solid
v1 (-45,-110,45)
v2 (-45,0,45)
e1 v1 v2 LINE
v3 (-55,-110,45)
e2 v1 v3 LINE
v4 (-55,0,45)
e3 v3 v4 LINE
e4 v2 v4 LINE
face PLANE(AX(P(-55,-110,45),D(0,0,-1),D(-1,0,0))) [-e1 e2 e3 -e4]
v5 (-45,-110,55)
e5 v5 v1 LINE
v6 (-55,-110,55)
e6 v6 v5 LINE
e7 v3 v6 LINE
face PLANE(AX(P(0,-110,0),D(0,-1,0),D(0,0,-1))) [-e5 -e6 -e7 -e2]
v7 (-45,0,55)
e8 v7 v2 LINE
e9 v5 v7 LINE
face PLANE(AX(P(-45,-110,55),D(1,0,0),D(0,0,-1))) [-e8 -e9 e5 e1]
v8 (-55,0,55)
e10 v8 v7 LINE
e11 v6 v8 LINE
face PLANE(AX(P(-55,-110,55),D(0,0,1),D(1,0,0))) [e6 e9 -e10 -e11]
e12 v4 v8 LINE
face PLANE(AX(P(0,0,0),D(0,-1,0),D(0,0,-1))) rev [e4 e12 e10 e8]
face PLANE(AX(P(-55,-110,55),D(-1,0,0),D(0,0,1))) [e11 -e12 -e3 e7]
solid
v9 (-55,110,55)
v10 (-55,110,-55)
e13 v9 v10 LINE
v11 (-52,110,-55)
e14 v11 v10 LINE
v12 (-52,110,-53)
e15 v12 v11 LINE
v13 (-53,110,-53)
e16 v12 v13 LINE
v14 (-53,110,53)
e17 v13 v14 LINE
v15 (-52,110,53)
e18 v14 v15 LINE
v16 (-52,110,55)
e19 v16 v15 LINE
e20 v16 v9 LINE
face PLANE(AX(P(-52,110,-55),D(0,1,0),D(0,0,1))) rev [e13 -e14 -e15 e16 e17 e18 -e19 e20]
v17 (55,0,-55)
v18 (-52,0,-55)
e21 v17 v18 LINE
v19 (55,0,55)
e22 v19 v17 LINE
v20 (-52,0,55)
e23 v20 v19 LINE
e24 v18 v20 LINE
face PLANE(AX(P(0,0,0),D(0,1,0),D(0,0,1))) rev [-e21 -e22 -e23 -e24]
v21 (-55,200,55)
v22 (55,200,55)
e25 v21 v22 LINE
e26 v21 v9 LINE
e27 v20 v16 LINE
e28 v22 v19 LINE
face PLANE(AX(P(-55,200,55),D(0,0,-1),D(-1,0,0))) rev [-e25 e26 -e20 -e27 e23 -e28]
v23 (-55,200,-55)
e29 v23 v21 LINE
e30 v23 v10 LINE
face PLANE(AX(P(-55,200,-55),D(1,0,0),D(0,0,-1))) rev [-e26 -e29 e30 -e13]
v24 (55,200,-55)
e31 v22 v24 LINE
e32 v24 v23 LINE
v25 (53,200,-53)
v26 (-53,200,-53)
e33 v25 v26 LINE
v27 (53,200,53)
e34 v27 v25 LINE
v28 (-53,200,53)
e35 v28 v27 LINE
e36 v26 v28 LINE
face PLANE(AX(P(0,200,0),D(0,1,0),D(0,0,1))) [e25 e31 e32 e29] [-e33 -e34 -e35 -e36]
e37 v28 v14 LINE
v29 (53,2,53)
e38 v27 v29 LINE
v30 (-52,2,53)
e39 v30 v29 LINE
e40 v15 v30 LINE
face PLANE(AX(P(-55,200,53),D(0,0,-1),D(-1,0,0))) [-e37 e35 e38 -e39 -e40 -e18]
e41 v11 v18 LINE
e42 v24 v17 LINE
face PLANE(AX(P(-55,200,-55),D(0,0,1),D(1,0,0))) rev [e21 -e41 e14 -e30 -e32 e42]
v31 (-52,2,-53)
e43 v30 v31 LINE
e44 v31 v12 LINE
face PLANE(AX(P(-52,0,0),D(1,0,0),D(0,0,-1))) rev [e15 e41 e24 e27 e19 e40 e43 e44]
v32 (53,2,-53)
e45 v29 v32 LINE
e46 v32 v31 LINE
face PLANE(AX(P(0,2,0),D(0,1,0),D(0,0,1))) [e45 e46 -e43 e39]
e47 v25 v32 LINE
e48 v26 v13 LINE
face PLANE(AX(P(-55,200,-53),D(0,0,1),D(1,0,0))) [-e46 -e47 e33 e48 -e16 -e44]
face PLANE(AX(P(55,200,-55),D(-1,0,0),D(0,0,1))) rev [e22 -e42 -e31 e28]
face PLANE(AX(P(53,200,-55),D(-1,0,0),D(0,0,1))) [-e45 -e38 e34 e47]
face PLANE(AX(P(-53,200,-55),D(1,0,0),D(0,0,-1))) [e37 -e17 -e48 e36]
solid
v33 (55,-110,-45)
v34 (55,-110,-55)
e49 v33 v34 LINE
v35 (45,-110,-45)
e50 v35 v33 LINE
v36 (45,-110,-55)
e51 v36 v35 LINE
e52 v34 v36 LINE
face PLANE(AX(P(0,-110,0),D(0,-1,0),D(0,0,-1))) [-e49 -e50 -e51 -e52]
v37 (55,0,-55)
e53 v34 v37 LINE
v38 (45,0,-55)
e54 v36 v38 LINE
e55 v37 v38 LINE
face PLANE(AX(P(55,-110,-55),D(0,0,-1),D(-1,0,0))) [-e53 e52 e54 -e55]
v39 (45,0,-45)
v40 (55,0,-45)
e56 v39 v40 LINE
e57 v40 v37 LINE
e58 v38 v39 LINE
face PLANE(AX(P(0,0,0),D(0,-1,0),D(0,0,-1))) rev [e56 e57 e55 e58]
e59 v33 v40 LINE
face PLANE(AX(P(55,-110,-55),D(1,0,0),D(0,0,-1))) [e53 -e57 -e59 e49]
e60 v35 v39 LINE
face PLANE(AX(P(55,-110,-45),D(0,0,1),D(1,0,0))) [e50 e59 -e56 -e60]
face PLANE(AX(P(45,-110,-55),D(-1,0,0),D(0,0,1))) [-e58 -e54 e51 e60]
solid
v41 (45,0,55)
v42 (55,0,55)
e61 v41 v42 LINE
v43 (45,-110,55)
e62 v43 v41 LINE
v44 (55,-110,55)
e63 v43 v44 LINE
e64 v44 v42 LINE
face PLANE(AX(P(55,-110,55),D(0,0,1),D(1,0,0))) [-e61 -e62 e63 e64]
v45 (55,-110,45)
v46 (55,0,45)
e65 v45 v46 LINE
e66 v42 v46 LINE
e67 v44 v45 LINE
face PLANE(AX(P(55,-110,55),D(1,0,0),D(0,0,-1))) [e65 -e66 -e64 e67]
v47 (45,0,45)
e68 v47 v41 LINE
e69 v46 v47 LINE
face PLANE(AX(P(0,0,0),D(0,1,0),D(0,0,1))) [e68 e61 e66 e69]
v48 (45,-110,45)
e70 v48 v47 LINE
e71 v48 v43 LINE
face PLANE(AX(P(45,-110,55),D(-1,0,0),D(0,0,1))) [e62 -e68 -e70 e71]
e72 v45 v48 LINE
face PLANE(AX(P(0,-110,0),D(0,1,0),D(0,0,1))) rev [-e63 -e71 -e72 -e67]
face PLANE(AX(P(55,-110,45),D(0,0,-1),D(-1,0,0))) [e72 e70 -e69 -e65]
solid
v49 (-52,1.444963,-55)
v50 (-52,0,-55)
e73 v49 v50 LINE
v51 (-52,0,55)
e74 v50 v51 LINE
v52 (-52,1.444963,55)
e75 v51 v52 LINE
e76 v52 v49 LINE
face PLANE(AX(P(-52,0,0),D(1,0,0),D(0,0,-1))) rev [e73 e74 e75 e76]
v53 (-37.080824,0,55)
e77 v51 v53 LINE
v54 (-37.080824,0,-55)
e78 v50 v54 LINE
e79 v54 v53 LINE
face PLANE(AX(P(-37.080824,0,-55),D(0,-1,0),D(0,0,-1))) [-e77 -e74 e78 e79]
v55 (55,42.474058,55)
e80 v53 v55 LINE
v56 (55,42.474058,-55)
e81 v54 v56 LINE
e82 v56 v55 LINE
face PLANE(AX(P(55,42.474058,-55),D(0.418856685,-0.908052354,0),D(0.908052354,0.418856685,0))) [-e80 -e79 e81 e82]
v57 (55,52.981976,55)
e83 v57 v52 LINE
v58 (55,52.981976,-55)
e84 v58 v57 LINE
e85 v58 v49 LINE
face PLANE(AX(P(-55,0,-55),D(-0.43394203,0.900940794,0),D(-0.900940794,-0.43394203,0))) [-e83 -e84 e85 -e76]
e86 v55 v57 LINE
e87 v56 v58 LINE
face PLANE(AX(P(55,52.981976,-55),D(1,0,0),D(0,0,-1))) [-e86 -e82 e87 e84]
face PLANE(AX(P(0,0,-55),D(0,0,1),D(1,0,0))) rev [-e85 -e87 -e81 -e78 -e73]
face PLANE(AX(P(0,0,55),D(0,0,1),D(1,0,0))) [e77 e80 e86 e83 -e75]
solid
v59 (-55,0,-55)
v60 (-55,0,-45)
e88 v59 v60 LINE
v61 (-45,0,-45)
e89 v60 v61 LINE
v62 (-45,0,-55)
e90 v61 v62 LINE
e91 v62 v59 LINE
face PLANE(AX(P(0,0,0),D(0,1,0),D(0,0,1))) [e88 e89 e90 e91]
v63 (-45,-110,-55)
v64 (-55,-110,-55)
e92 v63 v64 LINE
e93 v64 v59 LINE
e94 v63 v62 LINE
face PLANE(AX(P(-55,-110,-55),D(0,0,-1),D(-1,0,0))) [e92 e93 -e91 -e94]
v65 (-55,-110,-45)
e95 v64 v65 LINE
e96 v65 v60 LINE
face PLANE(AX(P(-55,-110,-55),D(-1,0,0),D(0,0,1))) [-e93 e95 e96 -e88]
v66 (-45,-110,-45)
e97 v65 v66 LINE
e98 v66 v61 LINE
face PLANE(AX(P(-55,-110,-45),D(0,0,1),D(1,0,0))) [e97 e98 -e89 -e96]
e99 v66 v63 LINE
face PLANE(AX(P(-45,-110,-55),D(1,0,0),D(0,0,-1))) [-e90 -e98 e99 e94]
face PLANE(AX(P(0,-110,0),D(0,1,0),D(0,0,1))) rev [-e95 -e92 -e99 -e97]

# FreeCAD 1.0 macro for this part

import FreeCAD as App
import Part
import Sketcher
Q = App.Units.Quantity


def faces_at(feature, points):
    """Names of the faces that lie closest to the given points."""
    faces = feature.Shape.Faces
    near = lambda p: min(range(len(faces)), key=lambda i: faces[i].distToShape(Part.Vertex(*p))[0])
    return sorted({f"Face{near(p) + 1}" for p in points})


def add_polygon(sketch, points):
    """Adds a closed chain of lines whose ends are joined by coincident constraints."""
    first, n = sketch.GeometryCount, len(points)
    for a, b in zip(points, points[1:] + points[:1]):
        sketch.addGeometry(Part.LineSegment(App.Vector(*a, 0), App.Vector(*b, 0)), False)
    for i in range(n):
        sketch.addConstraint(Sketcher.Constraint("Coincident", first + i, 2, first + (i + 1) % n, 1))

doc = App.newDocument("Part")
body = doc.addObject("PartDesign::Body", "Body")

sketch1 = doc.addObject("Sketcher::SketchObject", "Sketch")
body.addObject(sketch1)
sketch1.AttachmentSupport = (doc.XZ_Plane, [""])
sketch1.MapMode = "FlatFace"
add_polygon(sketch1, [(-55, -55), (-55, 55), (55, 55), (55, -55)])
sketch1.addConstraint(Sketcher.Constraint("Vertical", 0))
sketch1.addConstraint(Sketcher.Constraint("Horizontal", 1))
sketch1.addConstraint(Sketcher.Constraint("Vertical", 2))
sketch1.addConstraint(Sketcher.Constraint("Horizontal", 3))
sketch1.addConstraint(Sketcher.Constraint("Symmetric", 0, 2, 2, 2, -1, 1))
sketch1.addConstraint(Sketcher.Constraint("Equal", 3, 0))
sketch1.addConstraint(Sketcher.Constraint("DistanceX", 1, 1, 1, 2, Q("110 mm")))
pad1 = doc.addObject("PartDesign::Pad", "Pad")
body.addObject(pad1)
pad1.Profile = sketch1
pad1.Length = 200
pad1.Reversed = True
doc.recompute()

thickness = doc.addObject("PartDesign::Thickness", "Thickness")
body.addObject(thickness)
thickness.Base = (pad1, faces_at(pad1, [(0, 200, 0)]))
thickness.Value = 2
thickness.Reversed = True
thickness.Join = "Intersection"
body2 = doc.addObject("PartDesign::Body", "Body001")

sketch2 = doc.addObject("Sketcher::SketchObject", "Sketch001")
body2.addObject(sketch2)
sketch2.AttachmentSupport = (doc.getObject("XZ_Plane001"), [""])
sketch2.MapMode = "FlatFace"
add_polygon(sketch2, [(45, 45), (45, 55), (55, 55), (55, 45)])
sketch2.addConstraint(Sketcher.Constraint("Vertical", 0))
sketch2.addConstraint(Sketcher.Constraint("Horizontal", 1))
sketch2.addConstraint(Sketcher.Constraint("Vertical", 2))
sketch2.addConstraint(Sketcher.Constraint("Horizontal", 3))
sketch2.addConstraint(Sketcher.Constraint("Equal", 3, 0))
sketch2.addConstraint(Sketcher.Constraint("DistanceX", 1, 1, 1, 2, Q("10 mm")))
sketch2.addConstraint(Sketcher.Constraint("DistanceX", -1, 1, 0, 2, Q("45 mm")))
sketch2.addConstraint(Sketcher.Constraint("DistanceY", -1, 1, 0, 2, Q("55 mm")))
pad2 = doc.addObject("PartDesign::Pad", "Pad001")
body2.addObject(pad2)
pad2.Profile = sketch2
pad2.Length = 110
body3 = doc.addObject("PartDesign::Body", "Body002")

sketch3 = doc.addObject("Sketcher::SketchObject", "Sketch002")
body3.addObject(sketch3)
sketch3.AttachmentSupport = (doc.getObject("XZ_Plane002"), [""])
sketch3.MapMode = "FlatFace"
add_polygon(sketch3, [(45, -55), (45, -45), (55, -45), (55, -55)])
sketch3.addConstraint(Sketcher.Constraint("Vertical", 0))
sketch3.addConstraint(Sketcher.Constraint("Horizontal", 1))
sketch3.addConstraint(Sketcher.Constraint("Vertical", 2))
sketch3.addConstraint(Sketcher.Constraint("Horizontal", 3))
sketch3.addConstraint(Sketcher.Constraint("Equal", 3, 0))
sketch3.addConstraint(Sketcher.Constraint("DistanceX", 1, 1, 1, 2, Q("10 mm")))
sketch3.addConstraint(Sketcher.Constraint("DistanceX", -1, 1, 0, 2, Q("45 mm")))
sketch3.addConstraint(Sketcher.Constraint("DistanceY", 0, 2, -1, 1, Q("45 mm")))
pad3 = doc.addObject("PartDesign::Pad", "Pad002")
body3.addObject(pad3)
pad3.Profile = sketch3
pad3.Length = 110
body4 = doc.addObject("PartDesign::Body", "Body003")

sketch4 = doc.addObject("Sketcher::SketchObject", "Sketch003")
body4.addObject(sketch4)
sketch4.AttachmentSupport = (doc.getObject("XZ_Plane003"), [""])
sketch4.MapMode = "FlatFace"
add_polygon(sketch4, [(-55, 45), (-55, 55), (-45, 55), (-45, 45)])
sketch4.addConstraint(Sketcher.Constraint("Vertical", 0))
sketch4.addConstraint(Sketcher.Constraint("Horizontal", 1))
sketch4.addConstraint(Sketcher.Constraint("Vertical", 2))
sketch4.addConstraint(Sketcher.Constraint("Horizontal", 3))
sketch4.addConstraint(Sketcher.Constraint("Equal", 3, 0))
sketch4.addConstraint(Sketcher.Constraint("DistanceX", 1, 1, 1, 2, Q("10 mm")))
sketch4.addConstraint(Sketcher.Constraint("DistanceX", 0, 2, -1, 1, Q("55 mm")))
sketch4.addConstraint(Sketcher.Constraint("DistanceY", -1, 1, 0, 2, Q("55 mm")))
pad4 = doc.addObject("PartDesign::Pad", "Pad003")
body4.addObject(pad4)
pad4.Profile = sketch4
pad4.Length = 110
body5 = doc.addObject("PartDesign::Body", "Body004")

sketch5 = doc.addObject("Sketcher::SketchObject", "Sketch004")
body5.addObject(sketch5)
sketch5.AttachmentSupport = (doc.getObject("XZ_Plane004"), [""])
sketch5.MapMode = "FlatFace"
add_polygon(sketch5, [(-55, -55), (-55, -45), (-45, -45), (-45, -55)])
sketch5.addConstraint(Sketcher.Constraint("Vertical", 0))
sketch5.addConstraint(Sketcher.Constraint("Horizontal", 1))
sketch5.addConstraint(Sketcher.Constraint("Vertical", 2))
sketch5.addConstraint(Sketcher.Constraint("Horizontal", 3))
sketch5.addConstraint(Sketcher.Constraint("Equal", 3, 0))
sketch5.addConstraint(Sketcher.Constraint("DistanceX", 1, 1, 1, 2, Q("10 mm")))
sketch5.addConstraint(Sketcher.Constraint("DistanceX", 0, 2, -1, 1, Q("55 mm")))
sketch5.addConstraint(Sketcher.Constraint("DistanceY", 0, 2, -1, 1, Q("45 mm")))
pad5 = doc.addObject("PartDesign::Pad", "Pad004")
body5.addObject(pad5)
pad5.Profile = sketch5
pad5.Length = 110
body6 = doc.addObject("PartDesign::Body", "Body005")

sketch6 = doc.addObject("Sketcher::SketchObject", "Sketch005")
body6.addObject(sketch6)
sketch6.AttachmentSupport = (doc.getObject("XY_Plane005"), [""])
sketch6.MapMode = "FlatFace"
add_polygon(sketch6, [(55, 53), (-55, 0), (-37, 0), (55, 42)])
sketch6.addConstraint(Sketcher.Constraint("Horizontal", 1))
sketch6.addConstraint(Sketcher.Constraint("Vertical", 3))
sketch6.addConstraint(Sketcher.Constraint("PointOnObject", 0, 2, -1))
sketch6.addConstraint(Sketcher.Constraint("DistanceX", 0, 2, -1, 1, Q("55 mm")))
sketch6.addConstraint(Sketcher.Constraint("DistanceX", -1, 1, 2, 2, Q("55 mm")))
sketch6.addConstraint(Sketcher.Constraint("DistanceX", 1, 1, 1, 2, Q("17.919176 mm")))
sketch6.addConstraint(Sketcher.Constraint("DistanceY", 3, 1, 3, 2, Q("10.507917 mm")))
sketch6.addConstraint(Sketcher.Constraint("DistanceY", -1, 1, 2, 2, Q("42.474058 mm")))
pad6 = doc.addObject("PartDesign::Pad", "Pad005")
body6.addObject(pad6)
pad6.Profile = sketch6
pad6.Type = "TwoLengths"
pad6.Length = 55
pad6.Length2 = 55
body7 = doc.addObject("PartDesign::Body", "Body006")

sketch7 = doc.addObject("Sketcher::SketchObject", "Sketch006")
body7.addObject(sketch7)
sketch7.AttachmentSupport = (doc.getObject("YZ_Plane006"), [""])
sketch7.MapMode = "FlatFace"
sketch7.AttachmentOffset = App.Placement(App.Vector(0, 0, -55), App.Rotation())
add_polygon(sketch7, [(110, -55), (0, -55), (0, 55), (110, 55)])
sketch7.addConstraint(Sketcher.Constraint("Horizontal", 0))
sketch7.addConstraint(Sketcher.Constraint("Vertical", 1))
sketch7.addConstraint(Sketcher.Constraint("Horizontal", 2))
sketch7.addConstraint(Sketcher.Constraint("Vertical", 3))
sketch7.addConstraint(Sketcher.Constraint("Symmetric", 0, 2, 1, 2, -1, 1))
sketch7.addConstraint(Sketcher.Constraint("Equal", 2, 1))
sketch7.addConstraint(Sketcher.Constraint("DistanceX", 0, 2, 0, 1, Q("110 mm")))
pad7 = doc.addObject("PartDesign::Pad", "Pad006")
body7.addObject(pad7)
pad7.Profile = sketch7
pad7.Length = 3
doc.recompute()

body8 = doc.addObject("PartDesign::Body", "Body007")
body8.BaseFeature = body7
boolean = doc.addObject("PartDesign::Boolean", "Boolean")
body.addObject(boolean)
boolean.Type = "Cut"
boolean.addObjects([body8])
doc.recompute()

boolean2 = doc.addObject("PartDesign::Boolean", "Boolean001")
body6.addObject(boolean2)
boolean2.Type = "Cut"
boolean2.addObjects([body7])

doc.recompute()
